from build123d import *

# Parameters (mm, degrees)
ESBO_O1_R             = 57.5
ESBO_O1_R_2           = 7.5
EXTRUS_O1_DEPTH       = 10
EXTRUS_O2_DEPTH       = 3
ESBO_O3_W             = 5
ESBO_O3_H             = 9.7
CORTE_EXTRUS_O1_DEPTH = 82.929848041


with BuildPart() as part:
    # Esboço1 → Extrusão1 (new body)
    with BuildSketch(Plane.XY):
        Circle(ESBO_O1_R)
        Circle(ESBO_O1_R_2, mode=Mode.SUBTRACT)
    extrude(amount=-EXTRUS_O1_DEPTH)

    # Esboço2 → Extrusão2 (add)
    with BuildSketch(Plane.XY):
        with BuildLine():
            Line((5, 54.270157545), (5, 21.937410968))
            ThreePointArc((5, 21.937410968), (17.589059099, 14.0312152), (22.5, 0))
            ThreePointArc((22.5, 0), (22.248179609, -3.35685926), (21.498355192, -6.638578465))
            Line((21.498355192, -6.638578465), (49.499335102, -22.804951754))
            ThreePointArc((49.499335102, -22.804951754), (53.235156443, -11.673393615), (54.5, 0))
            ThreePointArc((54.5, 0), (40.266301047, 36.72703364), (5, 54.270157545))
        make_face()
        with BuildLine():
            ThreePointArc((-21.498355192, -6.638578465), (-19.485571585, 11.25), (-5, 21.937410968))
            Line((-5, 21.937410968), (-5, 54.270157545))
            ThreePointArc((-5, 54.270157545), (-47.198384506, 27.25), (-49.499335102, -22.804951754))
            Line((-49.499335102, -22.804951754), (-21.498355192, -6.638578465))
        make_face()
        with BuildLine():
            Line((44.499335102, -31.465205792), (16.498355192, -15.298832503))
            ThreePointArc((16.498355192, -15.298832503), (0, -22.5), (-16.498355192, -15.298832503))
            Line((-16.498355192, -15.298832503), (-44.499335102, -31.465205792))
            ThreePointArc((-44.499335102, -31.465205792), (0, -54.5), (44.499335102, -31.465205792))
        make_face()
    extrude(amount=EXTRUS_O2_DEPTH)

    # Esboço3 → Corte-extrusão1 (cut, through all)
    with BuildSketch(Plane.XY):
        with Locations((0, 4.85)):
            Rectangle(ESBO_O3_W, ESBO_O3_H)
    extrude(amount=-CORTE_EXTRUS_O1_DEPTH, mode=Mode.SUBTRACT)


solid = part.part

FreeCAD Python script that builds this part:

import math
import FreeCAD as App
import Part
import Sketcher
Q = App.Units.Quantity


def add_polygon(sketch, points):
    """Adds a closed chain of lines whose ends are joined by coincident constraints."""
    first, n = sketch.GeometryCount, len(points)
    for a, b in zip(points, points[1:] + points[:1]):
        sketch.addGeometry(Part.LineSegment(App.Vector(*a, 0), App.Vector(*b, 0)), False)
    for i in range(n):
        sketch.addConstraint(Sketcher.Constraint("Coincident", first + i, 2, first + (i + 1) % n, 1))

doc = App.newDocument("Part")
body = doc.addObject("PartDesign::Body", "Body")

sketch1 = doc.addObject("Sketcher::SketchObject", "Sketch")
body.addObject(sketch1)
sketch1.AttachmentSupport = (doc.XY_Plane, [""])
sketch1.MapMode = "FlatFace"
sketch1.addGeometry([
    Part.Circle(App.Vector(0, 0, 0), App.Vector(0, 0, 1), 58),
    Part.Circle(App.Vector(0, 0, 0), App.Vector(0, 0, 1), 8),
], False)
sketch1.addConstraint([
    Sketcher.Constraint("Coincident", 0, 3, -1, 1),
    Sketcher.Constraint("Coincident", 1, 3, -1, 1),
    Sketcher.Constraint("Diameter", 0, 115.0),
    Sketcher.Constraint("Diameter", 1, 15.0),
])
pad1 = doc.addObject("PartDesign::Pad", "Pad")
body.addObject(pad1)
pad1.Profile = sketch1
pad1.Length = 10
pad1.Reversed = True

sketch2 = doc.addObject("Sketcher::SketchObject", "Sketch001")
body.addObject(sketch2)
sketch2.AttachmentSupport = (doc.XY_Plane, [""])
sketch2.MapMode = "FlatFace"
sketch2.addGeometry([
    Part.LineSegment(App.Vector(5, 54, 0), App.Vector(5, 22, 0)),
    Part.ArcOfCircle(Part.Circle(App.Vector(0, 0, 0), App.Vector(0, 0, 1), 23), math.radians(0), math.radians(77)),
    Part.ArcOfCircle(Part.Circle(App.Vector(0, 0, 0), App.Vector(0, 0, 1), 22), math.radians(-17.16), math.radians(0)),
    Part.LineSegment(App.Vector(21, -7, 0), App.Vector(49, -23, 0)),
    Part.ArcOfCircle(Part.Circle(App.Vector(0, 0, 0), App.Vector(0, 0, 1), 55), math.radians(-25), math.radians(0)),
    Part.ArcOfCircle(Part.Circle(App.Vector(0, 0, 0), App.Vector(0, 0, 1), 54), math.radians(0), math.radians(85)),
    Part.ArcOfCircle(Part.Circle(App.Vector(0, 0, 0), App.Vector(0, 0, 1), 22), math.radians(103), math.radians(197)),
    Part.LineSegment(App.Vector(-5, 22, 0), App.Vector(-5, 54, 0)),
    Part.ArcOfCircle(Part.Circle(App.Vector(0, 0, 0), App.Vector(0, 0, 1), 54), math.radians(95), math.radians(205)),
    Part.LineSegment(App.Vector(-49, -23, 0), App.Vector(-21, -7, 0)),
    Part.LineSegment(App.Vector(44, -31, 0), App.Vector(16, -15, 0)),
    Part.ArcOfCircle(Part.Circle(App.Vector(0, 0, 0), App.Vector(0, 0, 1), 22), math.radians(-137), math.radians(-43)),
    Part.LineSegment(App.Vector(-16, -15, 0), App.Vector(-44, -31, 0)),
    Part.ArcOfCircle(Part.Circle(App.Vector(0, 0, 0), App.Vector(0, 0, 1), 55), math.radians(-145), math.radians(-35)),
], False)
sketch2.addConstraint([
    Sketcher.Constraint("Coincident", 0, 2, 1, 2),
    Sketcher.Constraint("Tangent", 1, 1, 2, 2),
    Sketcher.Constraint("Coincident", 2, 1, 3, 1),
    Sketcher.Constraint("Coincident", 3, 2, 4, 1),
    Sketcher.Constraint("Tangent", 4, 2, 5, 1),
    Sketcher.Constraint("Coincident", 5, 2, 0, 1),
    Sketcher.Constraint("Coincident", 6, 1, 7, 1),
    Sketcher.Constraint("Coincident", 7, 2, 8, 1),
    Sketcher.Constraint("Coincident", 8, 2, 9, 1),
    Sketcher.Constraint("Coincident", 9, 2, 6, 2),
    Sketcher.Constraint("Coincident", 10, 2, 11, 2),
    Sketcher.Constraint("Coincident", 11, 1, 12, 1),
    Sketcher.Constraint("Coincident", 12, 2, 13, 1),
    Sketcher.Constraint("Coincident", 13, 2, 10, 1),
    Sketcher.Constraint("Vertical", 0),
    Sketcher.Constraint("Vertical", 7),
    Sketcher.Constraint("Coincident", 1, 3, -1, 1),
    Sketcher.Constraint("Coincident", 4, 3, -1, 1),
    Sketcher.Constraint("Coincident", 6, 3, -1, 1),
    Sketcher.Constraint("Coincident", 8, 3, -1, 1),
    Sketcher.Constraint("Coincident", 11, 3, -1, 1),
    Sketcher.Constraint("Coincident", 13, 3, -1, 1),
    Sketcher.Constraint("Equal", 1, 2),
    Sketcher.Constraint("Equal", 4, 5),
    Sketcher.Constraint("Equal", 2, 6),
    Sketcher.Constraint("Equal", 5, 8),
    Sketcher.Constraint("Equal", 6, 11),
    Sketcher.Constraint("Equal", 8, 13),
    Sketcher.Constraint("PointOnObject", 1, 1, -1),
    Sketcher.Constraint("PointOnObject", 4, 2, -1),
    Sketcher.Constraint("Parallel", 3, 10),
    Sketcher.Constraint("Parallel", 9, 12),
    Sketcher.Constraint("Horizontal", 0, 2, 6, 1),
    Sketcher.Constraint("Horizontal", 3, 2, 8, 2),
    Sketcher.Constraint("Horizontal", 2, 1, 9, 2),
    Sketcher.Constraint("Horizontal", 10, 2, 11, 1),
    Sketcher.Constraint("Equal", 9, 10),
    Sketcher.Constraint("Radius", 1, 22.5),
    Sketcher.Constraint("Radius", 4, 54.5),
    Sketcher.Constraint("Angle", 3, Q("-30 deg")),
    Sketcher.Constraint("DistanceX", -1, 1, 0, 2, 5.0),
    Sketcher.Constraint("DistanceX", 10, 2, 2, 1, 5.0),
])
pad2 = doc.addObject("PartDesign::Pad", "Pad001")
body.addObject(pad2)
pad2.Profile = sketch2
pad2.Length = 3

sketch3 = doc.addObject("Sketcher::SketchObject", "Sketch002")
body.addObject(sketch3)
sketch3.AttachmentSupport = (doc.XY_Plane, [""])
sketch3.MapMode = "FlatFace"
add_polygon(sketch3, [(-2, 10), (-2, 0), (2, 0), (2, 10)])
sketch3.addConstraint([
    Sketcher.Constraint("Vertical", 0),
    Sketcher.Constraint("Horizontal", 1),
    Sketcher.Constraint("Vertical", 2),
    Sketcher.Constraint("Horizontal", 3),
    Sketcher.Constraint("Symmetric", 0, 2, 1, 2, -1, 1),
    Sketcher.Constraint("DistanceX", 1, 1, 1, 2, 5.0),
    Sketcher.Constraint("DistanceY", 0, 2, 0, 1, 9.7),
])
pocket1 = doc.addObject("PartDesign::Pocket", "Pocket")
body.addObject(pocket1)
pocket1.Profile = sketch3
pocket1.Type = "ThroughAll"

doc.recompute()
